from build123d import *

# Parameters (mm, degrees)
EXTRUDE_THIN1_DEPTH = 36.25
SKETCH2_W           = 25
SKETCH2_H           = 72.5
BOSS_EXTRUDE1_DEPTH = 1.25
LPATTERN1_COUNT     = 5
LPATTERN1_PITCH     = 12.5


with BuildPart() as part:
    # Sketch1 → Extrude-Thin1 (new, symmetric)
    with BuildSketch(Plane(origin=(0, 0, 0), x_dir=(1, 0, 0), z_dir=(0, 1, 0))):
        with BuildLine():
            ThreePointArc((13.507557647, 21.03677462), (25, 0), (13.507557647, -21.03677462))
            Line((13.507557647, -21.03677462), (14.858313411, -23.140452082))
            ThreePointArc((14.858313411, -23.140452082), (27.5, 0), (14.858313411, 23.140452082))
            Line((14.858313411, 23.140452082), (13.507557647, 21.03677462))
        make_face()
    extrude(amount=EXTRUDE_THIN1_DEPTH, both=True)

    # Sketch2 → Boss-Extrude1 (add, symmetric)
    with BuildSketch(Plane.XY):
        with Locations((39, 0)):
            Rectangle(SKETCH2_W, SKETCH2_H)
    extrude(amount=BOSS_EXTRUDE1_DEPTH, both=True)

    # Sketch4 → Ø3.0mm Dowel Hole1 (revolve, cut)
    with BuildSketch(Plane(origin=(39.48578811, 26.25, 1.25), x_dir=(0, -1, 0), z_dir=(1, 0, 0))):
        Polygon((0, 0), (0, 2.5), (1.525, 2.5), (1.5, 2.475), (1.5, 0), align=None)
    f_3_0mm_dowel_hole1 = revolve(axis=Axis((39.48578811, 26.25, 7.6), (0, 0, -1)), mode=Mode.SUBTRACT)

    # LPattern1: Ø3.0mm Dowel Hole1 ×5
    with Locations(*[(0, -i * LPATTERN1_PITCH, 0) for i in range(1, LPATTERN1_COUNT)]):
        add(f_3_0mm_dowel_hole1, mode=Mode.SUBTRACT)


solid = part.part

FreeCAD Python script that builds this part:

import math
import FreeCAD as App
import Part
import Sketcher
Q = App.Units.Quantity


def add_polygon(sketch, points):
    """Adds a closed chain of lines whose ends are joined by coincident constraints."""
    first, n = sketch.GeometryCount, len(points)
    for a, b in zip(points, points[1:] + points[:1]):
        sketch.addGeometry(Part.LineSegment(App.Vector(*a, 0), App.Vector(*b, 0)), False)
    for i in range(n):
        sketch.addConstraint(Sketcher.Constraint("Coincident", first + i, 2, first + (i + 1) % n, 1))

doc = App.newDocument("Part")
params = doc.addObject("Spreadsheet::Sheet", "Params")
for row, (alias, value) in enumerate([
    ("sketch1_radius", "25 mm"),
    ("sketch1_radius2", "27.5 mm"),
    ("pad1_length", "72.5 mm"),
    ("sketch2_width", "25 mm"),
    ("sketch2_height", "72.5 mm"),
    ("pad2_length", "2.5 mm"),
    ("sketch3_width", "1.5 mm"),
    ("sketch3_height", "2.5 mm"),
    ("groove_angle", "360 deg"),
    ("linearpattern_pitch", "12.5 mm"),
], start=1):
    params.set(f"A{row}", alias)
    params.set(f"B{row}", "=" + value)
    params.setAlias(f"B{row}", alias)

body = doc.addObject("PartDesign::Body", "Body")

# Sketch on XZ plane
sketch1 = body.newObject("Sketcher::SketchObject", "Sketch")
sketch1.AttachmentSupport = (doc.getObject("XZ_Plane"), [""])
sketch1.MapMode = "FlatFace"
sketch1.addGeometry(Part.ArcOfCircle(Part.Circle(App.Vector(0, 0, 0), App.Vector(0, 0, 1), 25), math.radians(-57.29578), math.radians(57.29578)), False)
sketch1.addGeometry(Part.LineSegment(App.Vector(13.507558, 21.036775, 0), App.Vector(14.858313, 23.140452, 0)), False)
sketch1.addGeometry(Part.ArcOfCircle(Part.Circle(App.Vector(0, 0, 0), App.Vector(0, 0, 1), 27.5), math.radians(-57.29578), math.radians(57.29578)), False)
sketch1.addGeometry(Part.LineSegment(App.Vector(14.858313, -23.140452, 0), App.Vector(13.507558, -21.036775, 0)), False)
sketch1.addConstraint(Sketcher.Constraint("Coincident", 0, 2, 1, 1))
sketch1.addConstraint(Sketcher.Constraint("Coincident", 1, 2, 2, 2))
sketch1.addConstraint(Sketcher.Constraint("Coincident", 2, 1, 3, 1))
sketch1.addConstraint(Sketcher.Constraint("Coincident", 3, 2, 0, 1))
sketch1.addConstraint(Sketcher.Constraint("Coincident", 0, 3, -1, 1))
sketch1.addConstraint(Sketcher.Constraint("Coincident", 2, 3, -1, 1))
sketch1.addConstraint(Sketcher.Constraint("Vertical", 1, 2, 2, 1))
sketch1.addConstraint(Sketcher.Constraint("Vertical", 0, 2, 3, 2))
sketch1.addConstraint(Sketcher.Constraint("Radius", 0, Q("25 mm")))
sketch1.addConstraint(Sketcher.Constraint("Radius", 2, Q("27.5 mm")))
sketch1.addConstraint(Sketcher.Constraint("DistanceY", 3, 2, 0, 2, Q("42.073549 mm")))
sketch1.addConstraint(Sketcher.Constraint("DistanceX", -1, 1, 1, 2, Q("14.858313 mm")))
sketch1.setExpression("Constraints[8]", "Params.sketch1_radius")
sketch1.setExpression("Constraints[9]", "Params.sketch1_radius2")
pad1 = body.newObject("PartDesign::Pad", "Pad")
pad1.Profile = sketch1
pad1.setExpression("Length", "Params.pad1_length")
pad1.Midplane = True

# Sketch on XY plane
sketch2 = body.newObject("Sketcher::SketchObject", "Sketch001")
sketch2.AttachmentSupport = (doc.getObject("XY_Plane"), [""])
sketch2.MapMode = "FlatFace"
add_polygon(sketch2, [(26.5, 36.25), (26.5, -36.25), (51.5, -36.25), (51.5, 36.25)])  # lines 0-3
sketch2.addConstraint(Sketcher.Constraint("Vertical", 0))
sketch2.addConstraint(Sketcher.Constraint("Horizontal", 1))
sketch2.addConstraint(Sketcher.Constraint("Vertical", 2))
sketch2.addConstraint(Sketcher.Constraint("Horizontal", 3))
sketch2.addConstraint(Sketcher.Constraint("DistanceX", 1, 1, 1, 2, Q("25 mm")))
sketch2.addConstraint(Sketcher.Constraint("DistanceY", 0, 2, 0, 1, Q("72.5 mm")))
sketch2.addConstraint(Sketcher.Constraint("DistanceX", -1, 1, 0, 2, Q("26.5 mm")))
sketch2.addConstraint(Sketcher.Constraint("DistanceY", 0, 2, -1, 1, Q("36.25 mm")))
sketch2.setExpression("Constraints[8]", "Params.sketch2_width")
sketch2.setExpression("Constraints[9]", "Params.sketch2_height")
pad2 = body.newObject("PartDesign::Pad", "Pad001")
pad2.Profile = sketch2
pad2.setExpression("Length", "Params.pad2_length")
pad2.Midplane = True

# Sketch on YZ plane
sketch3 = body.newObject("Sketcher::SketchObject", "Sketch002")
sketch3.AttachmentSupport = (doc.getObject("YZ_Plane"), [""])
sketch3.MapMode = "FlatFace"
sketch3.AttachmentOffset = App.Placement(App.Vector(0, 0, 39.485788), App.Rotation())
add_polygon(sketch3, [(26.25, -1.25), (26.25, 1.25), (24.75, 1.25), (24.75, -1.225), (24.725, -1.25)])  # lines 0-4
sketch3.addGeometry(Part.LineSegment(App.Vector(26.25, 1.25, 0), App.Vector(26.25, -1.25, 0)), True)  # axis
sketch3.addConstraint(Sketcher.Constraint("Vertical", 0))
sketch3.addConstraint(Sketcher.Constraint("Horizontal", 1))
sketch3.addConstraint(Sketcher.Constraint("Vertical", 2))
sketch3.addConstraint(Sketcher.Constraint("Horizontal", 4))
sketch3.addConstraint(Sketcher.Constraint("Vertical", 5))
sketch3.addConstraint(Sketcher.Constraint("Coincident", 5, 1, 0, 2))
sketch3.addConstraint(Sketcher.Constraint("Horizontal", 3, 2, 5, 2))
sketch3.addConstraint(Sketcher.Constraint("Angle", 3, Q("-135 deg")))
sketch3.addConstraint(Sketcher.Constraint("DistanceX", 1, 2, 1, 1, Q("1.5 mm")))
sketch3.addConstraint(Sketcher.Constraint("DistanceY", 0, 1, 0, 2, Q("2.5 mm")))
sketch3.addConstraint(Sketcher.Constraint("DistanceX", 4, 1, 4, 2, Q("1.525 mm")))
sketch3.addConstraint(Sketcher.Constraint("DistanceX", -1, 1, 0, 2, Q("26.25 mm")))
sketch3.addConstraint(Sketcher.Constraint("DistanceY", -1, 1, 0, 2, Q("1.25 mm")))
sketch3.setExpression("Constraints[13]", "Params.sketch3_width")
sketch3.setExpression("Constraints[14]", "Params.sketch3_height")
groove = body.newObject("PartDesign::Groove", "Groove")
groove.Profile = sketch3
groove.ReferenceAxis = (sketch3, ["Axis0"])
groove.setExpression("Angle", "Params.groove_angle")
doc.recompute()

linearpattern = body.newObject("PartDesign::LinearPattern", "LinearPattern")
linearpattern.Originals = [groove]
linearpattern.Direction = (doc.getObject("Y_Axis"), [""])
linearpattern.Mode = "offset"
linearpattern.setExpression("Offset", "Params.linearpattern_pitch")
linearpattern.Occurrences = 5
linearpattern.Reversed = True
body.Tip = linearpattern

doc.recompute()
